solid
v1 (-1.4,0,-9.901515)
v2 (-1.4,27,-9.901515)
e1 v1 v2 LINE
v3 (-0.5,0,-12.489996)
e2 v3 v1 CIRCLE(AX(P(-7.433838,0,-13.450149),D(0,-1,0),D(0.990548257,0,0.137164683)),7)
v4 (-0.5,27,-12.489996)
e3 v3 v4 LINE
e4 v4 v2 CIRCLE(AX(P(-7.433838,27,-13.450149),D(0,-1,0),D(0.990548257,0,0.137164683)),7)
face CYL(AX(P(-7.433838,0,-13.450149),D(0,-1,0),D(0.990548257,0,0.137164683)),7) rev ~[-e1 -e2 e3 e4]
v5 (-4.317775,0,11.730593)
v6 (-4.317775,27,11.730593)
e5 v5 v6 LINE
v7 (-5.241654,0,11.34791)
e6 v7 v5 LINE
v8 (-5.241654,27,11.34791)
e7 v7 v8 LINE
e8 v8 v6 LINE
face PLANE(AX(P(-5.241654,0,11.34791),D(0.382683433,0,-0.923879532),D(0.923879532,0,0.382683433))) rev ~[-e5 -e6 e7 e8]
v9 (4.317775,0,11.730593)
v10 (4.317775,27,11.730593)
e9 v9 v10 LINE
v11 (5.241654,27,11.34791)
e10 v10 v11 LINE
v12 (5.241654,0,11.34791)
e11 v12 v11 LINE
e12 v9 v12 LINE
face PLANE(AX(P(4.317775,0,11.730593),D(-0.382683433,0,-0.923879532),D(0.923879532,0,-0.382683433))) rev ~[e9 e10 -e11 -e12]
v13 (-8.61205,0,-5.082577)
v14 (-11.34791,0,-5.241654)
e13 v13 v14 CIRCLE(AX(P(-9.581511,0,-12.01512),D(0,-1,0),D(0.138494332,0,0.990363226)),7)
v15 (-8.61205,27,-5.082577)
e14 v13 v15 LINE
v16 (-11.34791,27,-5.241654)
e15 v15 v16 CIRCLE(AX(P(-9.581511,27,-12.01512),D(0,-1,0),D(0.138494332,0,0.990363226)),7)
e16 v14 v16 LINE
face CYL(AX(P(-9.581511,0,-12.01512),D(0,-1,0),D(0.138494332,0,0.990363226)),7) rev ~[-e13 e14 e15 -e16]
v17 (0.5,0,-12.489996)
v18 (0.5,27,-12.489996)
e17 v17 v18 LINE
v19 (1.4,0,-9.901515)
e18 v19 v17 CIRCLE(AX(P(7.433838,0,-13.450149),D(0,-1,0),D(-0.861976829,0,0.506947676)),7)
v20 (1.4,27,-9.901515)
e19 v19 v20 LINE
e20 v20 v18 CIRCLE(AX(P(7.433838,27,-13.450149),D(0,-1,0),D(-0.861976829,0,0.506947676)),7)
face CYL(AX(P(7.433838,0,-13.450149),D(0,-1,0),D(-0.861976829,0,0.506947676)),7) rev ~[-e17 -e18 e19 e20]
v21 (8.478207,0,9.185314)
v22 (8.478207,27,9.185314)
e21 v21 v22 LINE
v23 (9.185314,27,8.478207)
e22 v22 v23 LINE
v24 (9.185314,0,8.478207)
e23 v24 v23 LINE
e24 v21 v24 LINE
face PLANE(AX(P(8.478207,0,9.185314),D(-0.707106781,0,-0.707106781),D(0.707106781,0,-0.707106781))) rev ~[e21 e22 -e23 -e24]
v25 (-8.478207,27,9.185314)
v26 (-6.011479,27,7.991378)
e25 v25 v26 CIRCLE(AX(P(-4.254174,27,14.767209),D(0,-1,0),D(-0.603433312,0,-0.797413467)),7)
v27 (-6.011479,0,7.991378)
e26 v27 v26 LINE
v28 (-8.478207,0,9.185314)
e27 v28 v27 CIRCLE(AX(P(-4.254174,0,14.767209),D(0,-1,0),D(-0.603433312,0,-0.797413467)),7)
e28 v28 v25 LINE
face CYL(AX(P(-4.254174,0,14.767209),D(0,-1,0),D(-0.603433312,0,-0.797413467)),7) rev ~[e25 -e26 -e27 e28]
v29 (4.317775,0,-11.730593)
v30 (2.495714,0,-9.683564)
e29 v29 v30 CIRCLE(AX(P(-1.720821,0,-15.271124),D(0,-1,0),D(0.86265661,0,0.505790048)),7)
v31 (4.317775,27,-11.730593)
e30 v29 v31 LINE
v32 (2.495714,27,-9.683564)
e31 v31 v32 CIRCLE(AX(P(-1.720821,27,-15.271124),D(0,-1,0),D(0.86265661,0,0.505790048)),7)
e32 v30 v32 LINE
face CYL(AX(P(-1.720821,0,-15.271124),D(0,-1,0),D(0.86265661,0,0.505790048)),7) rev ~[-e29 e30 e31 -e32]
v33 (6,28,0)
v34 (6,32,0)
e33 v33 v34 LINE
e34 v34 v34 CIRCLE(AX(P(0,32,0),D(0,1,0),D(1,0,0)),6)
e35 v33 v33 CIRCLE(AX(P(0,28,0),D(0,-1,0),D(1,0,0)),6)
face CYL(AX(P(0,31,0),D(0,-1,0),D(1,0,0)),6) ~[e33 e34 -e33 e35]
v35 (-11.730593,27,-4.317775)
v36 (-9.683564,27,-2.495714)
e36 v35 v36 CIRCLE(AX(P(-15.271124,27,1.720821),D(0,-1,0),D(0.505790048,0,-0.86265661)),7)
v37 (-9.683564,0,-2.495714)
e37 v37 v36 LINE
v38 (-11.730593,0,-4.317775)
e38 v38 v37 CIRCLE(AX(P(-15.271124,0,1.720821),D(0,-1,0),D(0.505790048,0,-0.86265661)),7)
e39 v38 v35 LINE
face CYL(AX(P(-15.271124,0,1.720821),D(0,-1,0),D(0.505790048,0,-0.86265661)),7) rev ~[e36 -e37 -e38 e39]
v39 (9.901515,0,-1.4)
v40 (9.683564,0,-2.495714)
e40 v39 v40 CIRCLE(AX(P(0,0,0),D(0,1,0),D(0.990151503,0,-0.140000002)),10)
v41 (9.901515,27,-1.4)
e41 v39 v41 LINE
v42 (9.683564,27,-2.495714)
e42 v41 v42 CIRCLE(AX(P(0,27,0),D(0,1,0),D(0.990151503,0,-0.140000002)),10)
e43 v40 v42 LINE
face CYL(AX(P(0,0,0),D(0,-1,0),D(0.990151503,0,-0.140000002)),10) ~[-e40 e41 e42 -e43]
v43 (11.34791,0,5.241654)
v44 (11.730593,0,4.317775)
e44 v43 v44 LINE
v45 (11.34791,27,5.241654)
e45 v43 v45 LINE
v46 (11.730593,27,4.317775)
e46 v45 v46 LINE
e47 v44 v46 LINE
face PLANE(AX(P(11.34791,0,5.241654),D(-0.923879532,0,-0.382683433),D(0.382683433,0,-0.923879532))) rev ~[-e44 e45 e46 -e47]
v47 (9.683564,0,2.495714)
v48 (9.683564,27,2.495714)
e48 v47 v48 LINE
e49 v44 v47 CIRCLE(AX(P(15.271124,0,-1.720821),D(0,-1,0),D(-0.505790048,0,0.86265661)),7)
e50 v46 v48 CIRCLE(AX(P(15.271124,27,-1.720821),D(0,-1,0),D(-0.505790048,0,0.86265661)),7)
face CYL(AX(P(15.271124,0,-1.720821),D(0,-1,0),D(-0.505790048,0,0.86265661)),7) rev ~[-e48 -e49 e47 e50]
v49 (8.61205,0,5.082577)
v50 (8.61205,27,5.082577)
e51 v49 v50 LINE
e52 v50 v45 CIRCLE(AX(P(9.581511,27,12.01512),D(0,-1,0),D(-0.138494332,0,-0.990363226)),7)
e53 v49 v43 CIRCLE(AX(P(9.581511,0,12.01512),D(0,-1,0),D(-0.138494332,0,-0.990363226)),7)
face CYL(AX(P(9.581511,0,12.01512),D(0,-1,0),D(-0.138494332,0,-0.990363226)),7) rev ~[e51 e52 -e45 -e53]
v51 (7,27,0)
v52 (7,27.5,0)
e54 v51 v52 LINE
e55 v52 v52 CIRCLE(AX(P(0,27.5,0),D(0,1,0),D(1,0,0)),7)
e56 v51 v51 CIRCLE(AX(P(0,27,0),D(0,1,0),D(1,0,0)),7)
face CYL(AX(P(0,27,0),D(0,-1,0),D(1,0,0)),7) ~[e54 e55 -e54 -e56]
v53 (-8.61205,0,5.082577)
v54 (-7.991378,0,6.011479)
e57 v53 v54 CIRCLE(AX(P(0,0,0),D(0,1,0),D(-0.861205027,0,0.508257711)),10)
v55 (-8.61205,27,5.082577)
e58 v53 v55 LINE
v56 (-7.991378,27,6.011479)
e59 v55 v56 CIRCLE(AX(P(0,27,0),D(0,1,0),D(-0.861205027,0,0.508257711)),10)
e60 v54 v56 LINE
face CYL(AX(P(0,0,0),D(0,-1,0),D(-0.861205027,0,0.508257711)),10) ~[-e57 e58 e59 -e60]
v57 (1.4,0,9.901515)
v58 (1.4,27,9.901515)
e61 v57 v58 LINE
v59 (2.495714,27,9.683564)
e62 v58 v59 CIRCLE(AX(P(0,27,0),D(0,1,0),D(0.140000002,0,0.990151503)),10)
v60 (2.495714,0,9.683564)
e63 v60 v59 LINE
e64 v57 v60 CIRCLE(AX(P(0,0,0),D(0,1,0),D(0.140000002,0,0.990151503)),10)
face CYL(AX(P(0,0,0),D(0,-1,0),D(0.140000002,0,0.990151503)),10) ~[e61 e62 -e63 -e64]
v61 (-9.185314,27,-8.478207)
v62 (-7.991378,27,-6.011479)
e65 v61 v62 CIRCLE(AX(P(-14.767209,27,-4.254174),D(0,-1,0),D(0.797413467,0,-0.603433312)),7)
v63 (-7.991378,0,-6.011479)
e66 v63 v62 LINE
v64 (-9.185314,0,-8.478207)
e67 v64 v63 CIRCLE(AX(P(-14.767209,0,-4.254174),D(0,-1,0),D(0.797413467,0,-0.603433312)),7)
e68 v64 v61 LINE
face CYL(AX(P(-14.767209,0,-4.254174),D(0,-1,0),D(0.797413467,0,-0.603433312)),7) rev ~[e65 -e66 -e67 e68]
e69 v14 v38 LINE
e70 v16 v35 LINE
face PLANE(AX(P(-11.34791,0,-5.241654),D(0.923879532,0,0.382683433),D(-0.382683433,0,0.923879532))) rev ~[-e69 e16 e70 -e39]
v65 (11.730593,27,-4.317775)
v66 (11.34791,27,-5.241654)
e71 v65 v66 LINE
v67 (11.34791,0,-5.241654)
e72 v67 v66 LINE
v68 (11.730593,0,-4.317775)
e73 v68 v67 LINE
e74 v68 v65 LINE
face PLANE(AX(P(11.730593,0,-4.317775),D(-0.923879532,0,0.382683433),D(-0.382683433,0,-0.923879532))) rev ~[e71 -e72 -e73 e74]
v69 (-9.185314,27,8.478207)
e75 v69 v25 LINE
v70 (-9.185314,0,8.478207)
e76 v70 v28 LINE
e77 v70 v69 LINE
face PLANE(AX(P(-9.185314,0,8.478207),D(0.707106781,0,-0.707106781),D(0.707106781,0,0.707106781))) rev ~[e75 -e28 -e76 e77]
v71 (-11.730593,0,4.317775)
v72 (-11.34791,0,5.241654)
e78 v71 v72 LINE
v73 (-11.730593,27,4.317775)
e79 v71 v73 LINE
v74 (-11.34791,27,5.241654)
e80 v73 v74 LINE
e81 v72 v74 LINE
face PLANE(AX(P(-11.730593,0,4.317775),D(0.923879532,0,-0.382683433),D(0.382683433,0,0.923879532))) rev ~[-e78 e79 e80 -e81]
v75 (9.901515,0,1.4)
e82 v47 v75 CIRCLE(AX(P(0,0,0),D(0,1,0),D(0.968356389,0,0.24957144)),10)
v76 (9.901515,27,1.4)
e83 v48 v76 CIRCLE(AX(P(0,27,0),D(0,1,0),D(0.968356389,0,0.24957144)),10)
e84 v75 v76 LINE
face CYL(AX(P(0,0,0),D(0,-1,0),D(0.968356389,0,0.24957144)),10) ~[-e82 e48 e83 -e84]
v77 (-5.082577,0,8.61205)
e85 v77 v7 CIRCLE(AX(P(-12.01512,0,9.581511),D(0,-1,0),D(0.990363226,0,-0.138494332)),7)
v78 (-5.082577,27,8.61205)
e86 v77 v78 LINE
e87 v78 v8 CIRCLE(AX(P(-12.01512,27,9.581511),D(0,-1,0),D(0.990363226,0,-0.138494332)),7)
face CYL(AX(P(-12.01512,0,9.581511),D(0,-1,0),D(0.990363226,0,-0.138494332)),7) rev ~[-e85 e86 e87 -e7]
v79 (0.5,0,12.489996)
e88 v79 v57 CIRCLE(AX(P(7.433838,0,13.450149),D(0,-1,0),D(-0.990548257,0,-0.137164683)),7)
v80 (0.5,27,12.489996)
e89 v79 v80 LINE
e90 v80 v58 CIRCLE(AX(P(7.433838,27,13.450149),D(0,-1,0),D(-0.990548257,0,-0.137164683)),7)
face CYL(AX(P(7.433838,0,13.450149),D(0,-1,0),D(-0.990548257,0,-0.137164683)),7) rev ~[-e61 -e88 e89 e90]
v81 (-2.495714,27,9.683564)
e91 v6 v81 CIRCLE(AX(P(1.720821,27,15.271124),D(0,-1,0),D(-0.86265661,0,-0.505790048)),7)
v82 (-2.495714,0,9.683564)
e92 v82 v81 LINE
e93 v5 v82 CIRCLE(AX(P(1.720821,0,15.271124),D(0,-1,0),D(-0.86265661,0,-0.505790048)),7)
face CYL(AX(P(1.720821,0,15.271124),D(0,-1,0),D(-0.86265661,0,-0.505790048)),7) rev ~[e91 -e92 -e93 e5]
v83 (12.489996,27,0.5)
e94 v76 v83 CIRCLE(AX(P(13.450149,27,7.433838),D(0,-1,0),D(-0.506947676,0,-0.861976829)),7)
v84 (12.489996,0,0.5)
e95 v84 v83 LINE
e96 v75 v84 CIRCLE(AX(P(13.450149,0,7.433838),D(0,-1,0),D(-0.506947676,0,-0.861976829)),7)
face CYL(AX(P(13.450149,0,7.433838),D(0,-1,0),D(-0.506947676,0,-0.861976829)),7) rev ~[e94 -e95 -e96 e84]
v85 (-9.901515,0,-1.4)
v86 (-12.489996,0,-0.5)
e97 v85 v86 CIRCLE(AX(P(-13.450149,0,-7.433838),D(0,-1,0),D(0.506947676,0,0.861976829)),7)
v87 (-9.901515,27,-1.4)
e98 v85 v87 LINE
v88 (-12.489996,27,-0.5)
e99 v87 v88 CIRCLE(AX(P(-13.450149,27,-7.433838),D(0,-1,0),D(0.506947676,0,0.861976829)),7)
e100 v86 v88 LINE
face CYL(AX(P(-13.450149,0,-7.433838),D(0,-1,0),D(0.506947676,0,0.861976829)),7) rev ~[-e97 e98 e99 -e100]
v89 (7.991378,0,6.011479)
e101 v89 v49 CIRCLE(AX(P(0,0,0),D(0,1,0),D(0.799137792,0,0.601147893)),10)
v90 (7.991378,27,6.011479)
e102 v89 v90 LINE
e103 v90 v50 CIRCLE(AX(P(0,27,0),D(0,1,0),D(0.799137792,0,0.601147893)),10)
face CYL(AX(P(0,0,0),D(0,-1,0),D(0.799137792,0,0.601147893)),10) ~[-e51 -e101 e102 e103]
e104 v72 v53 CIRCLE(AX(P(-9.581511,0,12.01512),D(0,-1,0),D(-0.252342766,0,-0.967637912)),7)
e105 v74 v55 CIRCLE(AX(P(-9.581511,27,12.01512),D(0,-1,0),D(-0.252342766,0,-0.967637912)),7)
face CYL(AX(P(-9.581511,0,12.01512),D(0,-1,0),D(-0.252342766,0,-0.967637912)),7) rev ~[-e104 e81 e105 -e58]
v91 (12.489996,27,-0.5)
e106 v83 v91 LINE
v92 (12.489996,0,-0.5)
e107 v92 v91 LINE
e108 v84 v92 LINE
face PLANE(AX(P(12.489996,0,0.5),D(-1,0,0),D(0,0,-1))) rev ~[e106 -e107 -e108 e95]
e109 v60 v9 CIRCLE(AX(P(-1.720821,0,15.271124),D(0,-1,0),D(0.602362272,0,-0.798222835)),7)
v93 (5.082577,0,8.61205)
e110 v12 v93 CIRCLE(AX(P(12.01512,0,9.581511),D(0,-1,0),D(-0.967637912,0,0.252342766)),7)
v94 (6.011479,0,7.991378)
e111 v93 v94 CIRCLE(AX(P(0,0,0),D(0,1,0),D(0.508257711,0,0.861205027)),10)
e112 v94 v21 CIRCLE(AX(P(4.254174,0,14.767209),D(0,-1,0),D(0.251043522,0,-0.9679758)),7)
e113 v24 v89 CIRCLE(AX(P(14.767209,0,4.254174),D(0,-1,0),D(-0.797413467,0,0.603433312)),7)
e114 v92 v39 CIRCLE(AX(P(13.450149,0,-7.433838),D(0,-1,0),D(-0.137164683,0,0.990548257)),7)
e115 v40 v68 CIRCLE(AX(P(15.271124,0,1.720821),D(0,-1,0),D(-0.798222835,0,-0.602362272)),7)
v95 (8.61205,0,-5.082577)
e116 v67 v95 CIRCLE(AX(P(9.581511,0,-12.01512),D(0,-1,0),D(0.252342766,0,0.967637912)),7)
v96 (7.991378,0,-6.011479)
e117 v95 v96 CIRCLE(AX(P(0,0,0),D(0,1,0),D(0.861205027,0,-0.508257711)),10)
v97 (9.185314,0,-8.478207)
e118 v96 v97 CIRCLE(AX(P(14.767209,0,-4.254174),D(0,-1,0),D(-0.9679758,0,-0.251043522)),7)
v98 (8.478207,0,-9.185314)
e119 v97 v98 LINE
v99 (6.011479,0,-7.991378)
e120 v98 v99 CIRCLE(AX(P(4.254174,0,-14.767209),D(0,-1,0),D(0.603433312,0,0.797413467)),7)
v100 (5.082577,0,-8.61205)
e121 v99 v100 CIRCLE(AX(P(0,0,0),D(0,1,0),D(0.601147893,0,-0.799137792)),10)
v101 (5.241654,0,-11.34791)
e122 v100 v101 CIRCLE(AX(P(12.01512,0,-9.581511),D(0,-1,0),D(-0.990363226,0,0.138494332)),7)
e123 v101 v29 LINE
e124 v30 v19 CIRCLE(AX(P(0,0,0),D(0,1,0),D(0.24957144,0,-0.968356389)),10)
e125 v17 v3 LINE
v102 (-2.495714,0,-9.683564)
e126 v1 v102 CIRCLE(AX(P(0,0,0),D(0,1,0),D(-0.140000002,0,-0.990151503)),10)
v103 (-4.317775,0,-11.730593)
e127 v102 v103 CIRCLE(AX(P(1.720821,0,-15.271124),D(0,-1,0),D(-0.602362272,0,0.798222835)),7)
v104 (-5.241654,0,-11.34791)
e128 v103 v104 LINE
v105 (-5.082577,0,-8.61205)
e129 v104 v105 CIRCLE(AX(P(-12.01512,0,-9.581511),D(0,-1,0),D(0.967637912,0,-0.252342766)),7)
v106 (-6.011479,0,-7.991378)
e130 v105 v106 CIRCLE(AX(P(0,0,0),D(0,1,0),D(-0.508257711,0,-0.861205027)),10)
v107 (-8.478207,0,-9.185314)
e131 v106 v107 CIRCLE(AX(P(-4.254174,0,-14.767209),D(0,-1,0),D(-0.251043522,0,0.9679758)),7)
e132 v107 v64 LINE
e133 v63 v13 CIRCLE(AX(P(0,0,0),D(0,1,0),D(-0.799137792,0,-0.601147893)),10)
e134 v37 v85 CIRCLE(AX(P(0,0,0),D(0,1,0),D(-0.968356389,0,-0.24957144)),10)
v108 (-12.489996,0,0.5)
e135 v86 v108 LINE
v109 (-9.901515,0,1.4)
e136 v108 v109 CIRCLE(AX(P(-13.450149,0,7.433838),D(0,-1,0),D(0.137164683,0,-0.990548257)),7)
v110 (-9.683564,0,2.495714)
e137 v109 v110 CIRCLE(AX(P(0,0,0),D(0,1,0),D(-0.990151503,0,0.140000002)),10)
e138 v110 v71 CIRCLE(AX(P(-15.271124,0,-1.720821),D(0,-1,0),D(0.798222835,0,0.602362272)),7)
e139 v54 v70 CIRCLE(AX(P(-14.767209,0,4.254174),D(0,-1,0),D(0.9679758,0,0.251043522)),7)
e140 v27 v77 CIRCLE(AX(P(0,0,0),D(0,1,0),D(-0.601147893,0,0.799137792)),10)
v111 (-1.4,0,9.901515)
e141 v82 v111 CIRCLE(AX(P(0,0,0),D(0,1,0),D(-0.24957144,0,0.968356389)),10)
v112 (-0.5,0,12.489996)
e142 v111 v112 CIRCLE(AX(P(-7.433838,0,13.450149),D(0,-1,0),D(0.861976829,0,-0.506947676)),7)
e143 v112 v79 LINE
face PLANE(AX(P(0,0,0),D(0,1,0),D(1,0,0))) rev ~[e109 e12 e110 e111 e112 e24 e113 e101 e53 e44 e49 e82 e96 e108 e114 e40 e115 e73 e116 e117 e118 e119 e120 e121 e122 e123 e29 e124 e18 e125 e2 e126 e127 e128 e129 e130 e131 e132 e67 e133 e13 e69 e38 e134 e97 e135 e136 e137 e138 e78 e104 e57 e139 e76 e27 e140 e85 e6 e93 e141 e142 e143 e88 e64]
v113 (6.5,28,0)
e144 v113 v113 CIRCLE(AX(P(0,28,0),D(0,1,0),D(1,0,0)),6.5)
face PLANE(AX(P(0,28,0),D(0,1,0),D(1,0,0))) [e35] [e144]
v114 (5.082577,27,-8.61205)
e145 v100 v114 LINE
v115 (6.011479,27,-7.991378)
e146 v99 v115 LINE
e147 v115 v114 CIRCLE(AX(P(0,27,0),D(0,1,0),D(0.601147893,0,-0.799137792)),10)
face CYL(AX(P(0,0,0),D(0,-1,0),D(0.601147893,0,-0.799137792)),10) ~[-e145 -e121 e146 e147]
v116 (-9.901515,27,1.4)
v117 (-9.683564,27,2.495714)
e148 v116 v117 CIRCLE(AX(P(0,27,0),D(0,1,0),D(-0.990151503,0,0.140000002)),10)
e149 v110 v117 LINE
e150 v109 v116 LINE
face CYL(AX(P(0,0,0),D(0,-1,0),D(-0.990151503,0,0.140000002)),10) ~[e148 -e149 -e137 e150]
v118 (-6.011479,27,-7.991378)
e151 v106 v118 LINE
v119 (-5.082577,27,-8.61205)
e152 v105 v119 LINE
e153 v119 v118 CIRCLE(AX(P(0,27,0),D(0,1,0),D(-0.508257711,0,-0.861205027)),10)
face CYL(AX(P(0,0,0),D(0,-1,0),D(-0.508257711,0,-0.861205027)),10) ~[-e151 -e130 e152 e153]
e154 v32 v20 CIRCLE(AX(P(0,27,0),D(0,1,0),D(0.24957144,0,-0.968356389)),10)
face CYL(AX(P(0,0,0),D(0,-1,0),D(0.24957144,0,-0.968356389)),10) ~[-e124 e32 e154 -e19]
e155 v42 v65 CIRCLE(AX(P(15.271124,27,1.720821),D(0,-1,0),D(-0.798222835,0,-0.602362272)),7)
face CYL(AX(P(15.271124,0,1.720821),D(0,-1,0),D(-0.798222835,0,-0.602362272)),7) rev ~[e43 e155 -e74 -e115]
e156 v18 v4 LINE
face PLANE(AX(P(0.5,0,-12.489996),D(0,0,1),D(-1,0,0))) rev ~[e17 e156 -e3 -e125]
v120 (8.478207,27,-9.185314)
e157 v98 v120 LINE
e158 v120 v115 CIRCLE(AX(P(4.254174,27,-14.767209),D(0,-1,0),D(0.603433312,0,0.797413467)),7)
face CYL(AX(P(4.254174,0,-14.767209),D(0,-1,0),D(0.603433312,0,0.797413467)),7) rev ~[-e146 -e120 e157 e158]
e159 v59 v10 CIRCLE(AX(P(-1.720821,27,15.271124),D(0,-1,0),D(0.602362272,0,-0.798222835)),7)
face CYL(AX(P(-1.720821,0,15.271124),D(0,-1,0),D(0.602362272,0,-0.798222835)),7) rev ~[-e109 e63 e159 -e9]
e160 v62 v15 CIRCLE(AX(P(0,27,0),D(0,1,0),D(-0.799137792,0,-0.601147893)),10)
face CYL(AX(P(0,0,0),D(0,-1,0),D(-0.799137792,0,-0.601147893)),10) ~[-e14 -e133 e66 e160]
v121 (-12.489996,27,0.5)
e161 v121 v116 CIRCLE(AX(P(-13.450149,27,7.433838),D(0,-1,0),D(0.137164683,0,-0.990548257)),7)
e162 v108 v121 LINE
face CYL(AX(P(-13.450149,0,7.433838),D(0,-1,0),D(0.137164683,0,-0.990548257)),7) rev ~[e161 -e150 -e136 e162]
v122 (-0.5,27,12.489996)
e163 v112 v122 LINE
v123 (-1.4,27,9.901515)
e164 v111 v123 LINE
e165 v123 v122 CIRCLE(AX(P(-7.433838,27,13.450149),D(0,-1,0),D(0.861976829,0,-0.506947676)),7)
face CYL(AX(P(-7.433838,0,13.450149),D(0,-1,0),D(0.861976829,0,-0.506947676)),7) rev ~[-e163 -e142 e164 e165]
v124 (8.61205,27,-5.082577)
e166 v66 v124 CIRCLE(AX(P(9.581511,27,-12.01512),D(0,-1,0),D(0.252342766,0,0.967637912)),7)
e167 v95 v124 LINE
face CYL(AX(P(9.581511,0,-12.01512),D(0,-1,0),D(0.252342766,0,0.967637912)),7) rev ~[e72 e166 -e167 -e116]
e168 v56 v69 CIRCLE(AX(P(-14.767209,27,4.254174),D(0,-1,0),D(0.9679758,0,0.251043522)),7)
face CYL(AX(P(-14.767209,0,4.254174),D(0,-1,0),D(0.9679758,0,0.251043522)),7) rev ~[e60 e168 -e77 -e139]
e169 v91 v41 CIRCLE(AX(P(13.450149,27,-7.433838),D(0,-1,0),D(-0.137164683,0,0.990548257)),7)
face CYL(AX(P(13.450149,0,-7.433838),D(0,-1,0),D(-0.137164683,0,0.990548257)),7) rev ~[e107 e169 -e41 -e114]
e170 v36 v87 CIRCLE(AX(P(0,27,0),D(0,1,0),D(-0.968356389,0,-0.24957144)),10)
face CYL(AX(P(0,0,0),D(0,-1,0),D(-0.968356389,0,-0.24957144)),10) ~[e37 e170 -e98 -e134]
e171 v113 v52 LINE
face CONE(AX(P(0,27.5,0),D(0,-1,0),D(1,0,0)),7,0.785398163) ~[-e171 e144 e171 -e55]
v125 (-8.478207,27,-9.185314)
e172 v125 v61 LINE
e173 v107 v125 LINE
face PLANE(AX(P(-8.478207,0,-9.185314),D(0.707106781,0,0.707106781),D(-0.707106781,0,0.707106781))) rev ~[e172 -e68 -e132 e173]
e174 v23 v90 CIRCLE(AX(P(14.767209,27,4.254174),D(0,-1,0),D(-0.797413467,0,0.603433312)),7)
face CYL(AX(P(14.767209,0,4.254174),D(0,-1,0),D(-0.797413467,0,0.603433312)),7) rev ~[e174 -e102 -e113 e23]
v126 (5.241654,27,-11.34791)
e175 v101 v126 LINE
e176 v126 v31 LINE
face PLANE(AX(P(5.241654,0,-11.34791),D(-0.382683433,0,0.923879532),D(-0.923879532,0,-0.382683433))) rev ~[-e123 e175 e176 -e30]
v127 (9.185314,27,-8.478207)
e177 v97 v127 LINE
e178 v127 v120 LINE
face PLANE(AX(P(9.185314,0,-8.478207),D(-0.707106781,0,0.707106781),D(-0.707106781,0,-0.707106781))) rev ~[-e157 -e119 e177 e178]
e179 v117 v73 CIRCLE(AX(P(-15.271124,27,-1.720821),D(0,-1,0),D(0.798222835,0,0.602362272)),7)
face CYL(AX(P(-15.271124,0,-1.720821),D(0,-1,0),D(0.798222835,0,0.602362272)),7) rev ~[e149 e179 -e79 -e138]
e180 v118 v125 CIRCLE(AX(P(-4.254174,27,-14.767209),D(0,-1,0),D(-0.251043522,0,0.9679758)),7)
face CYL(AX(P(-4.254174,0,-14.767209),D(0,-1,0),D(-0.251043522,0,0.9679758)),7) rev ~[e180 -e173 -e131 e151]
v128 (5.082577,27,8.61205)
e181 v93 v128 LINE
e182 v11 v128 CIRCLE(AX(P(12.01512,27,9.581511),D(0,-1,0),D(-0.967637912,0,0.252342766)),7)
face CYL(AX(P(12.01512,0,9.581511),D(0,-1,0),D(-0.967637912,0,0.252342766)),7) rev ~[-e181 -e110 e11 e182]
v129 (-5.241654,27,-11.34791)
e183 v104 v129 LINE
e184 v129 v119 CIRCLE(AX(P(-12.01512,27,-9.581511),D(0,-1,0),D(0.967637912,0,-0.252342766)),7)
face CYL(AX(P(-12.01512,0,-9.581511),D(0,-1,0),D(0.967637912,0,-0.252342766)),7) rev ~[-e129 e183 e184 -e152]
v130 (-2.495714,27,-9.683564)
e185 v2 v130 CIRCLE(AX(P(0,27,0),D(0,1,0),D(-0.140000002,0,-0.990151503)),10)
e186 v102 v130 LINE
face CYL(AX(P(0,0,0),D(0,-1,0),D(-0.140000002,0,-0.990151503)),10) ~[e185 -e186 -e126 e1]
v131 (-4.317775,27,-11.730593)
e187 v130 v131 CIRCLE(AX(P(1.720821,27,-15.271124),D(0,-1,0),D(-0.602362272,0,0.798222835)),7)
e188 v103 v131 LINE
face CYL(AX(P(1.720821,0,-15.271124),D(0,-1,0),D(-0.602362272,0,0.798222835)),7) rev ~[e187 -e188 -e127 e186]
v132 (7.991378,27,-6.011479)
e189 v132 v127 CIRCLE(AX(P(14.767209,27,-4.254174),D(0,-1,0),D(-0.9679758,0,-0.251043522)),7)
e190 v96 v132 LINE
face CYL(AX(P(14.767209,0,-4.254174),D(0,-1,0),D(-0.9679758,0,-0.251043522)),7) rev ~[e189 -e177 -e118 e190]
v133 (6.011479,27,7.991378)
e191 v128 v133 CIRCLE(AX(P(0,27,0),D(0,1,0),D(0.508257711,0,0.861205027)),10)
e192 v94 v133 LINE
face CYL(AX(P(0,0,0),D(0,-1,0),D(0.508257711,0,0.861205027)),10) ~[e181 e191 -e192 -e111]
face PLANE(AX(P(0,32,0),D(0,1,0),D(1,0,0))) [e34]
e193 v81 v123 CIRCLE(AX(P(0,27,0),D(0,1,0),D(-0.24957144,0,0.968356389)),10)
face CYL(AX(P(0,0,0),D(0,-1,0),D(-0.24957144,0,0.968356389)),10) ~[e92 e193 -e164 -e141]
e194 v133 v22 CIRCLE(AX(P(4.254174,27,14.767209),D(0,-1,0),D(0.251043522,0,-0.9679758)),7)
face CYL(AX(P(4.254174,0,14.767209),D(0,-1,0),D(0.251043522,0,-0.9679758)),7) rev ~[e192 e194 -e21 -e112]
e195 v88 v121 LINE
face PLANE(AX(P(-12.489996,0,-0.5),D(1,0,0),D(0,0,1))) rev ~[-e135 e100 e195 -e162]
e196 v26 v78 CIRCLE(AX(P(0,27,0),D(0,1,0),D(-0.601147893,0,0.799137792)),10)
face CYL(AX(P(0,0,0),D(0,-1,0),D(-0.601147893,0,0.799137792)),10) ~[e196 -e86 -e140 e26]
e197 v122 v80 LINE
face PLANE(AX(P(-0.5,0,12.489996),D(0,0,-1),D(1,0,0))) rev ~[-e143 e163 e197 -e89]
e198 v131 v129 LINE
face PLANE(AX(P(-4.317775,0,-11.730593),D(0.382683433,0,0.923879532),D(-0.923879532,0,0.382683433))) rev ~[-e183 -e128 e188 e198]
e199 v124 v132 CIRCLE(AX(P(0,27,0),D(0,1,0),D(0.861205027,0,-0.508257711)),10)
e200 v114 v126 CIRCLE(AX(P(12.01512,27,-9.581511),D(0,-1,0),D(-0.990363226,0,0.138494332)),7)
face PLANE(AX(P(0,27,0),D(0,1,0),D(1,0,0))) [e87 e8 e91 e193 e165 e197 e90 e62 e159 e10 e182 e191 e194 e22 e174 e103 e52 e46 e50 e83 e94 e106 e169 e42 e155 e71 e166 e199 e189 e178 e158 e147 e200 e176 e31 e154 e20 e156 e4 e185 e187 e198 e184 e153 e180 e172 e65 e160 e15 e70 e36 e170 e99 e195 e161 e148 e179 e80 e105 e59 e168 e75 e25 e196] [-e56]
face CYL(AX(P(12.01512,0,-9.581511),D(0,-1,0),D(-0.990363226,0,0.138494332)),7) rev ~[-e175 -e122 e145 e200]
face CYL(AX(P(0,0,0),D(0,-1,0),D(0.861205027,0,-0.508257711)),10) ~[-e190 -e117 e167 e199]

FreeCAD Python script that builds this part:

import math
import FreeCAD as App
import Part
import Sketcher
from FreeCAD import Vector
Q = App.Units.Quantity


def edges_at(feature, points):
    """Names of the edges that pass closest to the given points."""
    edges = feature.Shape.Edges
    near = lambda p: min(range(len(edges)), key=lambda i: edges[i].distToShape(Part.Vertex(*p))[0])
    return sorted({f"Edge{near(p) + 1}" for p in points})

doc = App.newDocument("Part")
body = doc.addObject("PartDesign::Body", "Body")

# Sketch on XZ plane
sketch1 = doc.addObject("Sketcher::SketchObject", "Sketch")
body.addObject(sketch1)
sketch1.AttachmentSupport = (doc.XZ_Plane, [""])
sketch1.MapMode = "FlatFace"
sketch1.addGeometry([
    Part.LineSegment(Vector(0.5, -12.489996, 0), Vector(-0.5, -12.489996, 0)),  # 0
    Part.ArcOfCircle(Part.Circle(Vector(-7.433838, -13.450149, 0), Vector(0, 0, 1), 7), math.radians(7.883812), math.radians(30.460729)),  # 1
    Part.ArcOfCircle(Part.Circle(Vector(0, 0, 0), Vector(0, 0, 1), 10), math.radians(-104.452154), math.radians(-98.047846)),  # 2
    Part.ArcOfCircle(Part.Circle(Vector(1.720821, -15.271124, 0), Vector(0, 0, 1), 7), math.radians(127.039271), math.radians(149.616188)),  # 3
    Part.LineSegment(Vector(-4.317775, -11.730593, 0), Vector(-5.241654, -11.34791, 0)),  # 4
    Part.ArcOfCircle(Part.Circle(Vector(-12.01512, -9.581511, 0), Vector(0, 0, 1), 7), math.radians(-14.616188), math.radians(7.960729)),  # 5
    Part.ArcOfCircle(Part.Circle(Vector(0, 0, 0), Vector(0, 0, 1), 10), math.radians(-126.952154), math.radians(-120.547846)),  # 6
    Part.ArcOfCircle(Part.Circle(Vector(-4.254174, -14.767209, 0), Vector(0, 0, 1), 7), math.radians(104.539271), math.radians(127.116188)),  # 7
    Part.LineSegment(Vector(-8.478207, -9.185314, 0), Vector(-9.185314, -8.478207, 0)),  # 8
    Part.ArcOfCircle(Part.Circle(Vector(-14.767209, -4.254174, 0), Vector(0, 0, 1), 7), math.radians(-37.116188), math.radians(-14.539271)),  # 9
    Part.ArcOfCircle(Part.Circle(Vector(0, 0, 0), Vector(0, 0, 1), 10), math.radians(-149.452154), math.radians(-143.047846)),  # 10
    Part.ArcOfCircle(Part.Circle(Vector(-9.581511, -12.01512, 0), Vector(0, 0, 1), 7), math.radians(82.039271), math.radians(104.616188)),  # 11
    Part.LineSegment(Vector(-11.34791, -5.241654, 0), Vector(-11.730593, -4.317775, 0)),  # 12
    Part.ArcOfCircle(Part.Circle(Vector(-15.271124, 1.720821, 0), Vector(0, 0, 1), 7), math.radians(-59.616188), math.radians(-37.039271)),  # 13
    Part.ArcOfCircle(Part.Circle(Vector(0, 0, 0), Vector(0, 0, 1), 10), math.radians(-171.952154), math.radians(-165.547846)),  # 14
    Part.ArcOfCircle(Part.Circle(Vector(-13.450149, -7.433838, 0), Vector(0, 0, 1), 7), math.radians(59.539271), math.radians(82.116188)),  # 15
    Part.LineSegment(Vector(-12.489996, -0.5, 0), Vector(-12.489996, 0.5, 0)),  # 16
    Part.ArcOfCircle(Part.Circle(Vector(-13.450149, 7.433838, 0), Vector(0, 0, 1), 7), math.radians(-82.116188), math.radians(-59.539271)),  # 17
    Part.ArcOfCircle(Part.Circle(Vector(0, 0, 0), Vector(0, 0, 1), 10), math.radians(165.547846), math.radians(171.952154)),  # 18
    Part.ArcOfCircle(Part.Circle(Vector(-15.271124, -1.720821, 0), Vector(0, 0, 1), 7), math.radians(37.039271), math.radians(59.616188)),  # 19
    Part.LineSegment(Vector(-11.730593, 4.317775, 0), Vector(-11.34791, 5.241654, 0)),  # 20
    Part.ArcOfCircle(Part.Circle(Vector(-9.581511, 12.01512, 0), Vector(0, 0, 1), 7), math.radians(-104.616188), math.radians(-82.039271)),  # 21
    Part.ArcOfCircle(Part.Circle(Vector(0, 0, 0), Vector(0, 0, 1), 10), math.radians(143.047846), math.radians(149.452154)),  # 22
    Part.ArcOfCircle(Part.Circle(Vector(-14.767209, 4.254174, 0), Vector(0, 0, 1), 7), math.radians(14.539271), math.radians(37.116188)),  # 23
    Part.LineSegment(Vector(-9.185314, 8.478207, 0), Vector(-8.478207, 9.185314, 0)),  # 24
    Part.ArcOfCircle(Part.Circle(Vector(-4.254174, 14.767209, 0), Vector(0, 0, 1), 7), math.radians(-127.116188), math.radians(-104.539271)),  # 25
    Part.ArcOfCircle(Part.Circle(Vector(0, 0, 0), Vector(0, 0, 1), 10), math.radians(120.547846), math.radians(126.952154)),  # 26
    Part.ArcOfCircle(Part.Circle(Vector(-12.01512, 9.581511, 0), Vector(0, 0, 1), 7), math.radians(-7.960729), math.radians(14.616188)),  # 27
    Part.LineSegment(Vector(-5.241654, 11.34791, 0), Vector(-4.317775, 11.730593, 0)),  # 28
    Part.ArcOfCircle(Part.Circle(Vector(1.720821, 15.271124, 0), Vector(0, 0, 1), 7), math.radians(-149.616188), math.radians(-127.039271)),  # 29
    Part.ArcOfCircle(Part.Circle(Vector(0, 0, 0), Vector(0, 0, 1), 10), math.radians(98.047846), math.radians(104.452154)),  # 30
    Part.ArcOfCircle(Part.Circle(Vector(-7.433838, 13.450149, 0), Vector(0, 0, 1), 7), math.radians(-30.460729), math.radians(-7.883812)),  # 31
    Part.LineSegment(Vector(-0.5, 12.489996, 0), Vector(0.5, 12.489996, 0)),  # 32
    Part.ArcOfCircle(Part.Circle(Vector(7.433838, 13.450149, 0), Vector(0, 0, 1), 7), math.radians(-172.116188), math.radians(-149.539271)),  # 33
    Part.ArcOfCircle(Part.Circle(Vector(0, 0, 0), Vector(0, 0, 1), 10), math.radians(75.547846), math.radians(81.952154)),  # 34
    Part.ArcOfCircle(Part.Circle(Vector(-1.720821, 15.271124, 0), Vector(0, 0, 1), 7), math.radians(-52.960729), math.radians(-30.383812)),  # 35
    Part.LineSegment(Vector(4.317775, 11.730593, 0), Vector(5.241654, 11.34791, 0)),  # 36
    Part.ArcOfCircle(Part.Circle(Vector(12.01512, 9.581511, 0), Vector(0, 0, 1), 7), math.radians(165.383812), math.radians(187.960729)),  # 37
    Part.ArcOfCircle(Part.Circle(Vector(0, 0, 0), Vector(0, 0, 1), 10), math.radians(53.047846), math.radians(59.452154)),  # 38
    Part.ArcOfCircle(Part.Circle(Vector(4.254174, 14.767209, 0), Vector(0, 0, 1), 7), math.radians(-75.460729), math.radians(-52.883812)),  # 39
    Part.LineSegment(Vector(8.478207, 9.185314, 0), Vector(9.185314, 8.478207, 0)),  # 40
    Part.ArcOfCircle(Part.Circle(Vector(14.767209, 4.254174, 0), Vector(0, 0, 1), 7), math.radians(142.883812), math.radians(165.460729)),  # 41
    Part.ArcOfCircle(Part.Circle(Vector(0, 0, 0), Vector(0, 0, 1), 10), math.radians(30.547846), math.radians(36.952154)),  # 42
    Part.ArcOfCircle(Part.Circle(Vector(9.581511, 12.01512, 0), Vector(0, 0, 1), 7), math.radians(-97.960729), math.radians(-75.383812)),  # 43
    Part.LineSegment(Vector(11.34791, 5.241654, 0), Vector(11.730593, 4.317775, 0)),  # 44
    Part.ArcOfCircle(Part.Circle(Vector(15.271124, -1.720821, 0), Vector(0, 0, 1), 7), math.radians(120.383812), math.radians(142.960729)),  # 45
    Part.ArcOfCircle(Part.Circle(Vector(0, 0, 0), Vector(0, 0, 1), 10), math.radians(8.047846), math.radians(14.452154)),  # 46
    Part.ArcOfCircle(Part.Circle(Vector(13.450149, 7.433838, 0), Vector(0, 0, 1), 7), math.radians(-120.460729), math.radians(-97.883812)),  # 47
    Part.LineSegment(Vector(12.489996, 0.5, 0), Vector(12.489996, -0.5, 0)),  # 48
    Part.ArcOfCircle(Part.Circle(Vector(13.450149, -7.433838, 0), Vector(0, 0, 1), 7), math.radians(97.883812), math.radians(120.460729)),  # 49
    Part.ArcOfCircle(Part.Circle(Vector(0, 0, 0), Vector(0, 0, 1), 10), math.radians(-14.452154), math.radians(-8.047846)),  # 50
    Part.ArcOfCircle(Part.Circle(Vector(15.271124, 1.720821, 0), Vector(0, 0, 1), 7), math.radians(-142.960729), math.radians(-120.383812)),  # 51
    Part.LineSegment(Vector(11.730593, -4.317775, 0), Vector(11.34791, -5.241654, 0)),  # 52
    Part.ArcOfCircle(Part.Circle(Vector(9.581511, -12.01512, 0), Vector(0, 0, 1), 7), math.radians(75.383812), math.radians(97.960729)),  # 53
    Part.ArcOfCircle(Part.Circle(Vector(0, 0, 0), Vector(0, 0, 1), 10), math.radians(-36.952154), math.radians(-30.547846)),  # 54
    Part.ArcOfCircle(Part.Circle(Vector(14.767209, -4.254174, 0), Vector(0, 0, 1), 7), math.radians(-165.460729), math.radians(-142.883812)),  # 55
    Part.LineSegment(Vector(9.185314, -8.478207, 0), Vector(8.478207, -9.185314, 0)),  # 56
    Part.ArcOfCircle(Part.Circle(Vector(4.254174, -14.767209, 0), Vector(0, 0, 1), 7), math.radians(52.883812), math.radians(75.460729)),  # 57
    Part.ArcOfCircle(Part.Circle(Vector(0, 0, 0), Vector(0, 0, 1), 10), math.radians(-59.452154), math.radians(-53.047846)),  # 58
    Part.ArcOfCircle(Part.Circle(Vector(12.01512, -9.581511, 0), Vector(0, 0, 1), 7), math.radians(172.039271), math.radians(194.616188)),  # 59
    Part.LineSegment(Vector(5.241654, -11.34791, 0), Vector(4.317775, -11.730593, 0)),  # 60
    Part.ArcOfCircle(Part.Circle(Vector(-1.720821, -15.271124, 0), Vector(0, 0, 1), 7), math.radians(30.383812), math.radians(52.960729)),  # 61
    Part.ArcOfCircle(Part.Circle(Vector(0, 0, 0), Vector(0, 0, 1), 10), math.radians(-81.952154), math.radians(-75.547846)),  # 62
    Part.ArcOfCircle(Part.Circle(Vector(7.433838, -13.450149, 0), Vector(0, 0, 1), 7), math.radians(149.539271), math.radians(172.116188)),  # 63
], False)
sketch1.addConstraint([
    Sketcher.Constraint("Coincident", 0, 2, 1, 1),
    Sketcher.Constraint("Coincident", 1, 2, 2, 2),
    Sketcher.Constraint("Coincident", 2, 1, 3, 1),
    Sketcher.Constraint("Coincident", 3, 2, 4, 1),
    Sketcher.Constraint("Coincident", 4, 2, 5, 1),
    Sketcher.Constraint("Coincident", 5, 2, 6, 2),
    Sketcher.Constraint("Coincident", 6, 1, 7, 1),
    Sketcher.Constraint("Coincident", 7, 2, 8, 1),
    Sketcher.Constraint("Coincident", 8, 2, 9, 1),
    Sketcher.Constraint("Coincident", 9, 2, 10, 2),
    Sketcher.Constraint("Coincident", 10, 1, 11, 1),
    Sketcher.Constraint("Coincident", 11, 2, 12, 1),
    Sketcher.Constraint("Coincident", 12, 2, 13, 1),
    Sketcher.Constraint("Coincident", 13, 2, 14, 2),
    Sketcher.Constraint("Coincident", 14, 1, 15, 1),
    Sketcher.Constraint("Coincident", 15, 2, 16, 1),
    Sketcher.Constraint("Coincident", 16, 2, 17, 1),
    Sketcher.Constraint("Coincident", 17, 2, 18, 2),
    Sketcher.Constraint("Coincident", 18, 1, 19, 1),
    Sketcher.Constraint("Coincident", 19, 2, 20, 1),
    Sketcher.Constraint("Coincident", 20, 2, 21, 1),
    Sketcher.Constraint("Coincident", 21, 2, 22, 2),
    Sketcher.Constraint("Coincident", 22, 1, 23, 1),
    Sketcher.Constraint("Coincident", 23, 2, 24, 1),
    Sketcher.Constraint("Coincident", 24, 2, 25, 1),
    Sketcher.Constraint("Coincident", 25, 2, 26, 2),
    Sketcher.Constraint("Coincident", 26, 1, 27, 1),
    Sketcher.Constraint("Coincident", 27, 2, 28, 1),
    Sketcher.Constraint("Coincident", 28, 2, 29, 1),
    Sketcher.Constraint("Coincident", 29, 2, 30, 2),
    Sketcher.Constraint("Coincident", 30, 1, 31, 1),
    Sketcher.Constraint("Coincident", 31, 2, 32, 1),
    Sketcher.Constraint("Coincident", 32, 2, 33, 1),
    Sketcher.Constraint("Coincident", 33, 2, 34, 2),
    Sketcher.Constraint("Coincident", 34, 1, 35, 1),
    Sketcher.Constraint("Coincident", 35, 2, 36, 1),
    Sketcher.Constraint("Coincident", 36, 2, 37, 1),
    Sketcher.Constraint("Coincident", 37, 2, 38, 2),
    Sketcher.Constraint("Coincident", 38, 1, 39, 1),
    Sketcher.Constraint("Coincident", 39, 2, 40, 1),
    Sketcher.Constraint("Coincident", 40, 2, 41, 1),
    Sketcher.Constraint("Coincident", 41, 2, 42, 2),
    Sketcher.Constraint("Coincident", 42, 1, 43, 1),
    Sketcher.Constraint("Coincident", 43, 2, 44, 1),
    Sketcher.Constraint("Coincident", 44, 2, 45, 1),
    Sketcher.Constraint("Coincident", 45, 2, 46, 2),
    Sketcher.Constraint("Coincident", 46, 1, 47, 1),
    Sketcher.Constraint("Coincident", 47, 2, 48, 1),
    Sketcher.Constraint("Coincident", 48, 2, 49, 1),
    Sketcher.Constraint("Coincident", 49, 2, 50, 2),
    Sketcher.Constraint("Coincident", 50, 1, 51, 1),
    Sketcher.Constraint("Coincident", 51, 2, 52, 1),
    Sketcher.Constraint("Coincident", 52, 2, 53, 1),
    Sketcher.Constraint("Coincident", 53, 2, 54, 2),
    Sketcher.Constraint("Coincident", 54, 1, 55, 1),
    Sketcher.Constraint("Coincident", 55, 2, 56, 1),
    Sketcher.Constraint("Coincident", 56, 2, 57, 1),
    Sketcher.Constraint("Coincident", 57, 2, 58, 2),
    Sketcher.Constraint("Coincident", 58, 1, 59, 1),
    Sketcher.Constraint("Coincident", 59, 2, 60, 1),
    Sketcher.Constraint("Coincident", 60, 2, 61, 1),
    Sketcher.Constraint("Coincident", 61, 2, 62, 2),
    Sketcher.Constraint("Coincident", 62, 1, 63, 1),
    Sketcher.Constraint("Coincident", 63, 2, 0, 1),
    Sketcher.Constraint("Horizontal", 0),
    Sketcher.Constraint("Vertical", 16),
    Sketcher.Constraint("Horizontal", 32),
    Sketcher.Constraint("Vertical", 48),
    Sketcher.Constraint("Coincident", 2, 3, -1, 1),
    Sketcher.Constraint("Coincident", 6, 3, -1, 1),
    Sketcher.Constraint("Coincident", 10, 3, -1, 1),
    Sketcher.Constraint("Coincident", 14, 3, -1, 1),
    Sketcher.Constraint("Coincident", 18, 3, -1, 1),
    Sketcher.Constraint("Coincident", 22, 3, -1, 1),
    Sketcher.Constraint("Coincident", 26, 3, -1, 1),
    Sketcher.Constraint("Coincident", 30, 3, -1, 1),
    Sketcher.Constraint("Coincident", 34, 3, -1, 1),
    Sketcher.Constraint("Coincident", 38, 3, -1, 1),
    Sketcher.Constraint("Coincident", 42, 3, -1, 1),
    Sketcher.Constraint("Coincident", 46, 3, -1, 1),
    Sketcher.Constraint("Coincident", 50, 3, -1, 1),
    Sketcher.Constraint("Coincident", 54, 3, -1, 1),
    Sketcher.Constraint("Coincident", 58, 3, -1, 1),
    Sketcher.Constraint("Coincident", 62, 3, -1, 1),
    Sketcher.Constraint("Equal", 1, 3),
    Sketcher.Constraint("Equal", 3, 5),
    Sketcher.Constraint("Equal", 2, 6),
    Sketcher.Constraint("Equal", 5, 7),
    Sketcher.Constraint("Equal", 7, 9),
    Sketcher.Constraint("Equal", 6, 10),
    Sketcher.Constraint("Equal", 9, 11),
    Sketcher.Constraint("Equal", 11, 13),
    Sketcher.Constraint("Equal", 10, 14),
    Sketcher.Constraint("Equal", 13, 15),
    Sketcher.Constraint("Equal", 15, 17),
    Sketcher.Constraint("Equal", 14, 18),
    Sketcher.Constraint("Equal", 17, 19),
    Sketcher.Constraint("Equal", 19, 21),
    Sketcher.Constraint("Equal", 18, 22),
    Sketcher.Constraint("Equal", 21, 23),
    Sketcher.Constraint("Equal", 23, 25),
    Sketcher.Constraint("Equal", 22, 26),
    Sketcher.Constraint("Equal", 25, 27),
    Sketcher.Constraint("Equal", 27, 29),
    Sketcher.Constraint("Equal", 26, 30),
    Sketcher.Constraint("Equal", 29, 31),
    Sketcher.Constraint("Equal", 31, 33),
    Sketcher.Constraint("Equal", 30, 34),
    Sketcher.Constraint("Equal", 33, 35),
    Sketcher.Constraint("Equal", 35, 37),
    Sketcher.Constraint("Equal", 34, 38),
    Sketcher.Constraint("Equal", 37, 39),
    Sketcher.Constraint("Equal", 39, 41),
    Sketcher.Constraint("Equal", 38, 42),
    Sketcher.Constraint("Equal", 41, 43),
    Sketcher.Constraint("Equal", 43, 45),
    Sketcher.Constraint("Equal", 42, 46),
    Sketcher.Constraint("Equal", 45, 47),
    Sketcher.Constraint("Equal", 47, 49),
    Sketcher.Constraint("Equal", 46, 50),
    Sketcher.Constraint("Equal", 49, 51),
    Sketcher.Constraint("Equal", 51, 53),
    Sketcher.Constraint("Equal", 50, 54),
    Sketcher.Constraint("Equal", 53, 55),
    Sketcher.Constraint("Equal", 55, 57),
    Sketcher.Constraint("Equal", 54, 58),
    Sketcher.Constraint("Equal", 57, 59),
    Sketcher.Constraint("Equal", 59, 61),
    Sketcher.Constraint("Equal", 58, 62),
    Sketcher.Constraint("Equal", 61, 63),
    Sketcher.Constraint("Symmetric", 1, 3, 33, 3, -1, 1),
    Sketcher.Constraint("Symmetric", 3, 3, 35, 3, -1, 1),
    Sketcher.Constraint("Symmetric", 5, 3, 37, 3, -1, 1),
    Sketcher.Constraint("Symmetric", 7, 3, 39, 3, -1, 1),
    Sketcher.Constraint("Symmetric", 9, 3, 41, 3, -1, 1),
    Sketcher.Constraint("Symmetric", 11, 3, 43, 3, -1, 1),
    Sketcher.Constraint("Symmetric", 13, 3, 45, 3, -1, 1),
    Sketcher.Constraint("Symmetric", 15, 3, 47, 3, -1, 1),
    Sketcher.Constraint("Symmetric", 17, 3, 49, 3, -1, 1),
    Sketcher.Constraint("Symmetric", 19, 3, 51, 3, -1, 1),
    Sketcher.Constraint("Symmetric", 21, 3, 53, 3, -1, 1),
    Sketcher.Constraint("Symmetric", 23, 3, 55, 3, -1, 1),
    Sketcher.Constraint("Symmetric", 25, 3, 57, 3, -1, 1),
    Sketcher.Constraint("Symmetric", 27, 3, 59, 3, -1, 1),
    Sketcher.Constraint("Symmetric", 29, 3, 61, 3, -1, 1),
    Sketcher.Constraint("Symmetric", 31, 3, 63, 3, -1, 1),
    Sketcher.Constraint("Symmetric", 31, 3, 33, 3, -2),
    Sketcher.Constraint("Symmetric", 29, 3, 35, 3, -2),
    Sketcher.Constraint("Symmetric", 27, 3, 37, 3, -2),
    Sketcher.Constraint("Symmetric", 25, 3, 39, 3, -2),
    Sketcher.Constraint("Symmetric", 23, 3, 41, 3, -2),
    Sketcher.Constraint("Symmetric", 21, 3, 43, 3, -2),
    Sketcher.Constraint("Symmetric", 19, 3, 45, 3, -2),
    Sketcher.Constraint("Symmetric", 17, 3, 47, 3, -2),
    Sketcher.Constraint("Perpendicular", 4, 20),
    Sketcher.Constraint("Perpendicular", 8, 24),
    Sketcher.Constraint("Perpendicular", 12, 28),
    Sketcher.Constraint("Perpendicular", 20, 36),
    Sketcher.Constraint("Perpendicular", 24, 40),
    Sketcher.Constraint("Perpendicular", 28, 44),
    Sketcher.Constraint("Perpendicular", 36, 52),
    Sketcher.Constraint("Perpendicular", 40, 56),
    Sketcher.Constraint("Perpendicular", 44, 60),
    Sketcher.Constraint("Horizontal", 28, 2, 35, 2),
    Sketcher.Constraint("Horizontal", 27, 2, 36, 2),
    Sketcher.Constraint("Horizontal", 24, 2, 39, 2),
    Sketcher.Constraint("Horizontal", 23, 2, 40, 2),
    Sketcher.Constraint("Horizontal", 20, 2, 43, 2),
    Sketcher.Constraint("Horizontal", 16, 2, 47, 2),
    Sketcher.Constraint("Horizontal", 12, 2, 51, 2),
    Sketcher.Constraint("Horizontal", 8, 2, 55, 2),
    Sketcher.Constraint("Horizontal", 4, 2, 59, 2),
    Sketcher.Constraint("Vertical", 12, 2, 19, 2),
    Sketcher.Constraint("Vertical", 8, 2, 23, 2),
    Sketcher.Constraint("Vertical", 4, 2, 27, 2),
    Sketcher.Constraint("Vertical", 0, 2, 31, 2),
    Sketcher.Constraint("Equal", 32, 16),
    Sketcher.Constraint("Equal", 4, 8),
    Sketcher.Constraint("Equal", 8, 12),
    Sketcher.Constraint("Radius", 1, Q("7 mm")),
    Sketcher.Constraint("Radius", 2, Q("10 mm")),
    Sketcher.Constraint("DistanceX", 0, 2, 0, 1, Q("1 mm")),
    Sketcher.Constraint("Distance", 4, Q("1 mm")),
    Sketcher.Constraint("Angle", 4, Q("157.5 deg")),
    Sketcher.Constraint("DistanceX", 1, 2, -1, 1, Q("1.4 mm")),
    Sketcher.Constraint("DistanceY", 14, 1, -1, 1, Q("1.4 mm")),
    Sketcher.Constraint("DistanceY", 1, 3, -1, 1, Q("13.450149 mm")),
    Sketcher.Constraint("DistanceX", -1, 1, 3, 3, Q("1.720821 mm")),
    Sketcher.Constraint("DistanceX", 5, 3, -1, 1, Q("12.01512 mm")),
    Sketcher.Constraint("DistanceY", 5, 3, -1, 1, Q("9.581511 mm")),
    Sketcher.Constraint("DistanceY", 7, 3, -1, 1, Q("14.767209 mm")),
    Sketcher.Constraint("DistanceX", 9, 3, -1, 1, Q("14.767209 mm")),
    Sketcher.Constraint("DistanceX", 11, 3, -1, 1, Q("9.581511 mm")),
    Sketcher.Constraint("DistanceY", 11, 3, -1, 1, Q("12.01512 mm")),
    Sketcher.Constraint("DistanceY", -1, 1, 13, 3, Q("1.720821 mm")),
    Sketcher.Constraint("DistanceX", 15, 3, -1, 1, Q("13.450149 mm")),
    Sketcher.Constraint("DistanceY", 4, 2, -1, 1, Q("11.34791 mm")),
    Sketcher.Constraint("DistanceX", 6, 1, -1, 1, Q("6.011479 mm")),
    Sketcher.Constraint("DistanceY", 9, 2, -1, 1, Q("6.011479 mm")),
    Sketcher.Constraint("DistanceX", 11, 2, -1, 1, Q("11.34791 mm")),
])
pad1 = doc.addObject("PartDesign::Pad", "Pad")
body.addObject(pad1)
pad1.Profile = sketch1
pad1.Length = 27
pad1.Reversed = True

# Sketch on XZ plane
sketch2 = doc.addObject("Sketcher::SketchObject", "Sketch001")
body.addObject(sketch2)
sketch2.AttachmentSupport = (doc.XZ_Plane, [""])
sketch2.MapMode = "FlatFace"
sketch2.AttachmentOffset = App.Placement(Vector(0, 0, -27), App.Rotation())
sketch2.addGeometry(Part.Circle(Vector(0, 0, 0), Vector(0, 0, 1), 6), False)
sketch2.addConstraint([
    Sketcher.Constraint("Coincident", 0, 3, -1, 1),
    Sketcher.Constraint("Diameter", 0, Q("12 mm")),
])
pad2 = doc.addObject("PartDesign::Pad", "Pad001")
body.addObject(pad2)
pad2.Profile = sketch2
pad2.Length = 4
pad2.Reversed = True

# Sketch on XZ plane
sketch3 = doc.addObject("Sketcher::SketchObject", "Sketch002")
body.addObject(sketch3)
sketch3.AttachmentSupport = (doc.XZ_Plane, [""])
sketch3.MapMode = "FlatFace"
sketch3.AttachmentOffset = App.Placement(Vector(0, 0, -27), App.Rotation())
sketch3.addGeometry(Part.Circle(Vector(0, 0, 0), Vector(0, 0, 1), 7), False)
sketch3.addConstraint([
    Sketcher.Constraint("Coincident", 0, 3, -1, 1),
    Sketcher.Constraint("Diameter", 0, Q("14 mm")),
])
pad3 = doc.addObject("PartDesign::Pad", "Pad002")
body.addObject(pad3)
pad3.Profile = sketch3
pad3.Length = 1
pad3.Reversed = True

# Sketch on XZ plane
sketch4 = doc.addObject("Sketcher::SketchObject", "Sketch003")
body.addObject(sketch4)
sketch4.AttachmentSupport = (doc.XZ_Plane, [""])
sketch4.MapMode = "FlatFace"
sketch4.AttachmentOffset = App.Placement(Vector(0, 0, -31), App.Rotation())
sketch4.addGeometry(Part.Circle(Vector(0, 0, 0), Vector(0, 0, 1), 6), False)
sketch4.addConstraint([
    Sketcher.Constraint("Coincident", 0, 3, -1, 1),
    Sketcher.Constraint("Diameter", 0, Q("12 mm")),
])
pad4 = doc.addObject("PartDesign::Pad", "Pad003")
body.addObject(pad4)
pad4.Profile = sketch4
pad4.Length = 1
pad4.Reversed = True
doc.recompute()

chamfer = doc.addObject("PartDesign::Chamfer", "Chamfer")
body.addObject(chamfer)
chamfer.Base = (pad4, edges_at(pad4, [(-7, 28, 0)]))
chamfer.Size = 0.5

doc.recompute()
